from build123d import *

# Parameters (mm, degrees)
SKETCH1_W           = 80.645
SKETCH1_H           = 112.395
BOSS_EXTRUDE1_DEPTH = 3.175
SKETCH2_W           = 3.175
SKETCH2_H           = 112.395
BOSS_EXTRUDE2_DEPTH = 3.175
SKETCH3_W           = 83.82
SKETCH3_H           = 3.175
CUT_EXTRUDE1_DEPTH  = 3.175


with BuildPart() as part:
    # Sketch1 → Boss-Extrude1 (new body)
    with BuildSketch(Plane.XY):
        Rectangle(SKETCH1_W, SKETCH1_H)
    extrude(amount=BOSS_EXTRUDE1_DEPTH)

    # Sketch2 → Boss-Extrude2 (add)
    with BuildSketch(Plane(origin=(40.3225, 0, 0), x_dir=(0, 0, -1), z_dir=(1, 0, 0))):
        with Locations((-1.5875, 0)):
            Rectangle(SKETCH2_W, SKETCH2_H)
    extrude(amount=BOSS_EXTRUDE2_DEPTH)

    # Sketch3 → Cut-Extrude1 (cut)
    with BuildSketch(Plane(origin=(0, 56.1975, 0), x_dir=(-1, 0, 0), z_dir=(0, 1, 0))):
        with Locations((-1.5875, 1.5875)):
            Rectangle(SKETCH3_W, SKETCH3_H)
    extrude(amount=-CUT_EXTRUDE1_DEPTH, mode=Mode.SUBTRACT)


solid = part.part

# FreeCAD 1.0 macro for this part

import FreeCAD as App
import Part
import Sketcher
Q = App.Units.Quantity

doc = App.newDocument("Part")
body = doc.addObject("PartDesign::Body", "Body")

sketch1 = body.newObject("Sketcher::SketchObject", "Sketch")
sketch1.AttachmentSupport = (doc.getObject("XY_Plane"), [""])
sketch1.MapMode = "FlatFace"
sketch1.addGeometry([
    Part.LineSegment(App.Vector(-40.3225, 56.1975, 0), App.Vector(-40.3225, -56.1975, 0)),
    Part.LineSegment(App.Vector(-40.3225, -56.1975, 0), App.Vector(40.3225, -56.1975, 0)),
    Part.LineSegment(App.Vector(40.3225, -56.1975, 0), App.Vector(40.3225, 56.1975, 0)),
    Part.LineSegment(App.Vector(40.3225, 56.1975, 0), App.Vector(-40.3225, 56.1975, 0)),
], False)
sketch1.addConstraint([
    Sketcher.Constraint("Coincident", 0, 2, 1, 1),
    Sketcher.Constraint("Coincident", 1, 2, 2, 1),
    Sketcher.Constraint("Coincident", 2, 2, 3, 1),
    Sketcher.Constraint("Coincident", 3, 2, 0, 1),
    Sketcher.Constraint("Vertical", 0),
    Sketcher.Constraint("Horizontal", 1),
    Sketcher.Constraint("Vertical", 2),
    Sketcher.Constraint("Horizontal", 3),
    Sketcher.Constraint("Symmetric", 0, 2, 2, 2, -1, 1),
    Sketcher.Constraint("DistanceX", 1, 1, 1, 2, Q("3.175 in")),
    Sketcher.Constraint("DistanceY", 0, 2, 0, 1, Q("4.425 in")),
])
pad1 = body.newObject("PartDesign::Pad", "Pad")
pad1.Profile = sketch1
pad1.Length = Q("0.125 in")

sketch2 = body.newObject("Sketcher::SketchObject", "Sketch001")
sketch2.AttachmentSupport = (doc.getObject("YZ_Plane"), [""])
sketch2.MapMode = "FlatFace"
sketch2.AttachmentOffset = App.Placement(App.Vector(0, 0, 1.5875 * 25.4), App.Rotation())
sketch2.addGeometry([
    Part.LineSegment(App.Vector(56.1975, 3.175, 0), App.Vector(-56.1975, 3.175, 0)),
    Part.LineSegment(App.Vector(-56.1975, 3.175, 0), App.Vector(-56.1975, 0, 0)),
    Part.LineSegment(App.Vector(-56.1975, 0, 0), App.Vector(56.1975, 0, 0)),
    Part.LineSegment(App.Vector(56.1975, 0, 0), App.Vector(56.1975, 3.175, 0)),
], False)
sketch2.addConstraint([
    Sketcher.Constraint("Coincident", 0, 2, 1, 1),
    Sketcher.Constraint("Coincident", 1, 2, 2, 1),
    Sketcher.Constraint("Coincident", 2, 2, 3, 1),
    Sketcher.Constraint("Coincident", 3, 2, 0, 1),
    Sketcher.Constraint("Horizontal", 0),
    Sketcher.Constraint("Vertical", 1),
    Sketcher.Constraint("Horizontal", 2),
    Sketcher.Constraint("Vertical", 3),
    Sketcher.Constraint("Symmetric", 1, 2, 2, 2, -1, 1),
    Sketcher.Constraint("DistanceX", 0, 2, 0, 1, Q("4.425 in")),
    Sketcher.Constraint("DistanceY", 1, 2, 1, 1, Q("0.125 in")),
])
pad2 = body.newObject("PartDesign::Pad", "Pad001")
pad2.Profile = sketch2
pad2.Length = Q("0.125 in")

sketch3 = body.newObject("Sketcher::SketchObject", "Sketch002")
sketch3.AttachmentSupport = (doc.getObject("XZ_Plane"), [""])
sketch3.MapMode = "FlatFace"
sketch3.AttachmentOffset = App.Placement(App.Vector(0, 0, -2.2125 * 25.4), App.Rotation())
sketch3.addGeometry([
    Part.LineSegment(App.Vector(43.4975, 3.175, 0), App.Vector(43.4975, 0, 0)),
    Part.LineSegment(App.Vector(43.4975, 0, 0), App.Vector(-40.3225, 0, 0)),
    Part.LineSegment(App.Vector(-40.3225, 0, 0), App.Vector(-40.3225, 3.175, 0)),
    Part.LineSegment(App.Vector(-40.3225, 3.175, 0), App.Vector(43.4975, 3.175, 0)),
], False)
sketch3.addConstraint([
    Sketcher.Constraint("Coincident", 0, 2, 1, 1),
    Sketcher.Constraint("Coincident", 1, 2, 2, 1),
    Sketcher.Constraint("Coincident", 2, 2, 3, 1),
    Sketcher.Constraint("Coincident", 3, 2, 0, 1),
    Sketcher.Constraint("Vertical", 0),
    Sketcher.Constraint("Horizontal", 1),
    Sketcher.Constraint("Vertical", 2),
    Sketcher.Constraint("Horizontal", 3),
    Sketcher.Constraint("PointOnObject", 0, 2, -1),
    Sketcher.Constraint("DistanceX", 1, 2, 1, 1, Q("3.3 in")),
    Sketcher.Constraint("DistanceY", 0, 2, 0, 1, Q("0.125 in")),
    Sketcher.Constraint("DistanceX", -1, 1, 0, 2, Q("1.7125 in")),
])
pocket1 = body.newObject("PartDesign::Pocket", "Pocket")
pocket1.Profile = sketch3
pocket1.Length = Q("0.125 in")
pocket1.Reversed = True

doc.recompute()
